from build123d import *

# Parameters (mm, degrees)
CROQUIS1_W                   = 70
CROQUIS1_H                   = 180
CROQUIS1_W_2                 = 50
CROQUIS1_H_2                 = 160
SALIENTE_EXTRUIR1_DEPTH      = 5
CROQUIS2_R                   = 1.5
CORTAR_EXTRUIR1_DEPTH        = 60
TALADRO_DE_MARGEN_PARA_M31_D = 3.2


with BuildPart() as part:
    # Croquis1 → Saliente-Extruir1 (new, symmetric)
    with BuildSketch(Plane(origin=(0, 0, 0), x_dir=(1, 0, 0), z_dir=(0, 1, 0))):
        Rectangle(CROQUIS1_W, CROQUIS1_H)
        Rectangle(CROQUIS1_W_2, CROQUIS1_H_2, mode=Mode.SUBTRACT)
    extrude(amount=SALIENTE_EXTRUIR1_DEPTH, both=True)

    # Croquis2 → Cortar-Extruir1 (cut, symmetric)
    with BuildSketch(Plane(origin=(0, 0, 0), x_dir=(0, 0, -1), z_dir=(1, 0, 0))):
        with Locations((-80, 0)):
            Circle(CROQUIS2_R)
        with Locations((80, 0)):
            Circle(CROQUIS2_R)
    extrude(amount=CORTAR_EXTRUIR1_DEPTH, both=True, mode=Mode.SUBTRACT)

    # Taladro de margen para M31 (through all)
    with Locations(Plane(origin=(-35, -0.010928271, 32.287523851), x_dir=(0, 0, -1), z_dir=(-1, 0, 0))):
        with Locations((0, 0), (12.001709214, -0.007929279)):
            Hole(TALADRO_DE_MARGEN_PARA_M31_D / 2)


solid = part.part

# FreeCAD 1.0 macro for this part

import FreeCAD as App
import Part
import Sketcher


def add_polygon(sketch, points):
    """Adds a closed chain of lines whose ends are joined by coincident constraints."""
    first, n = sketch.GeometryCount, len(points)
    for a, b in zip(points, points[1:] + points[:1]):
        sketch.addGeometry(Part.LineSegment(App.Vector(*a, 0), App.Vector(*b, 0)), False)
    for i in range(n):
        sketch.addConstraint(Sketcher.Constraint("Coincident", first + i, 2, first + (i + 1) % n, 1))

doc = App.newDocument("Part")
body = doc.addObject("PartDesign::Body", "Body")

# Sketch on XZ plane
sketch1 = body.newObject("Sketcher::SketchObject", "Sketch")
sketch1.AttachmentSupport = (doc.getObject("XZ_Plane"), [""])
sketch1.MapMode = "FlatFace"
add_polygon(sketch1, [(-35, -90), (-35, 90), (35, 90), (35, -90)])  # lines 0-3
add_polygon(sketch1, [(25, 80), (-25, 80), (-25, -80), (25, -80)])  # lines 4-7
sketch1.addConstraint([
    Sketcher.Constraint("Vertical", 0),
    Sketcher.Constraint("Horizontal", 1),
    Sketcher.Constraint("Vertical", 2),
    Sketcher.Constraint("Horizontal", 3),
    Sketcher.Constraint("Horizontal", 4),
    Sketcher.Constraint("Vertical", 5),
    Sketcher.Constraint("Horizontal", 6),
    Sketcher.Constraint("Vertical", 7),
    Sketcher.Constraint("Symmetric", 0, 2, 2, 2, -1, 1),
    Sketcher.Constraint("Symmetric", 4, 2, 6, 2, -1, 1),
    Sketcher.Constraint("DistanceX", 1, 1, 1, 2, 70.0),
    Sketcher.Constraint("DistanceX", 4, 2, 4, 1, 50.0),
    Sketcher.Constraint("DistanceY", 0, 1, 0, 2, 180.0),
    Sketcher.Constraint("DistanceY", 5, 2, 5, 1, 160.0),
])
pad1 = body.newObject("PartDesign::Pad", "Pad")
pad1.Profile = sketch1
pad1.Length = 10
pad1.Midplane = True

# Sketch on YZ plane
sketch2 = body.newObject("Sketcher::SketchObject", "Sketch001")
sketch2.AttachmentSupport = (doc.getObject("YZ_Plane"), [""])
sketch2.MapMode = "FlatFace"
sketch2.addGeometry([
    Part.Circle(App.Vector(0, 80, 0), App.Vector(0, 0, 1), 1.5),
    Part.Circle(App.Vector(0, -80, 0), App.Vector(0, 0, 1), 1.5),
], False)
sketch2.addConstraint([
    Sketcher.Constraint("Equal", 0, 1),
    Sketcher.Constraint("Symmetric", 0, 3, 1, 3, -1, 1),
    Sketcher.Constraint("PointOnObject", 0, 3, -2),
    Sketcher.Constraint("Diameter", 0, 3.0),
    Sketcher.Constraint("DistanceY", -1, 1, 0, 3, 80.0),
])
pocket1 = body.newObject("PartDesign::Pocket", "Pocket")
pocket1.Profile = sketch2
pocket1.Length = 120
pocket1.Midplane = True

# Sketch on YZ plane
sketch3 = body.newObject("Sketcher::SketchObject", "Sketch002")
sketch3.AttachmentSupport = (doc.getObject("YZ_Plane"), [""])
sketch3.MapMode = "FlatFace"
sketch3.AttachmentOffset = App.Placement(App.Vector(0, 0, -35), App.Rotation())
sketch3.addGeometry([
    Part.Circle(App.Vector(0, 32.3, 0), App.Vector(0, 0, 1), 1.6),
    Part.Circle(App.Vector(0, 20.3, 0), App.Vector(0, 0, 1), 1.6),
], False)
sketch3.addConstraint([
    Sketcher.Constraint("Equal", 0, 1),
    Sketcher.Constraint("Diameter", 0, 3.2),
    Sketcher.Constraint("DistanceX", 1, 3, -1, 1, 0.002999),
    Sketcher.Constraint("DistanceX", 0, 3, -1, 1, 0.010928),
    Sketcher.Constraint("DistanceY", 1, 3, 0, 3, 12.001709),
    Sketcher.Constraint("DistanceY", -1, 1, 0, 3, 32.287524),
])
doc.recompute()
hole = body.newObject("PartDesign::Hole", "Hole")
hole.Profile = sketch3
hole.ThreadType = "None"
hole.Diameter = 3.2
hole.DepthType = "ThroughAll"
hole.Reversed = True

doc.recompute()
